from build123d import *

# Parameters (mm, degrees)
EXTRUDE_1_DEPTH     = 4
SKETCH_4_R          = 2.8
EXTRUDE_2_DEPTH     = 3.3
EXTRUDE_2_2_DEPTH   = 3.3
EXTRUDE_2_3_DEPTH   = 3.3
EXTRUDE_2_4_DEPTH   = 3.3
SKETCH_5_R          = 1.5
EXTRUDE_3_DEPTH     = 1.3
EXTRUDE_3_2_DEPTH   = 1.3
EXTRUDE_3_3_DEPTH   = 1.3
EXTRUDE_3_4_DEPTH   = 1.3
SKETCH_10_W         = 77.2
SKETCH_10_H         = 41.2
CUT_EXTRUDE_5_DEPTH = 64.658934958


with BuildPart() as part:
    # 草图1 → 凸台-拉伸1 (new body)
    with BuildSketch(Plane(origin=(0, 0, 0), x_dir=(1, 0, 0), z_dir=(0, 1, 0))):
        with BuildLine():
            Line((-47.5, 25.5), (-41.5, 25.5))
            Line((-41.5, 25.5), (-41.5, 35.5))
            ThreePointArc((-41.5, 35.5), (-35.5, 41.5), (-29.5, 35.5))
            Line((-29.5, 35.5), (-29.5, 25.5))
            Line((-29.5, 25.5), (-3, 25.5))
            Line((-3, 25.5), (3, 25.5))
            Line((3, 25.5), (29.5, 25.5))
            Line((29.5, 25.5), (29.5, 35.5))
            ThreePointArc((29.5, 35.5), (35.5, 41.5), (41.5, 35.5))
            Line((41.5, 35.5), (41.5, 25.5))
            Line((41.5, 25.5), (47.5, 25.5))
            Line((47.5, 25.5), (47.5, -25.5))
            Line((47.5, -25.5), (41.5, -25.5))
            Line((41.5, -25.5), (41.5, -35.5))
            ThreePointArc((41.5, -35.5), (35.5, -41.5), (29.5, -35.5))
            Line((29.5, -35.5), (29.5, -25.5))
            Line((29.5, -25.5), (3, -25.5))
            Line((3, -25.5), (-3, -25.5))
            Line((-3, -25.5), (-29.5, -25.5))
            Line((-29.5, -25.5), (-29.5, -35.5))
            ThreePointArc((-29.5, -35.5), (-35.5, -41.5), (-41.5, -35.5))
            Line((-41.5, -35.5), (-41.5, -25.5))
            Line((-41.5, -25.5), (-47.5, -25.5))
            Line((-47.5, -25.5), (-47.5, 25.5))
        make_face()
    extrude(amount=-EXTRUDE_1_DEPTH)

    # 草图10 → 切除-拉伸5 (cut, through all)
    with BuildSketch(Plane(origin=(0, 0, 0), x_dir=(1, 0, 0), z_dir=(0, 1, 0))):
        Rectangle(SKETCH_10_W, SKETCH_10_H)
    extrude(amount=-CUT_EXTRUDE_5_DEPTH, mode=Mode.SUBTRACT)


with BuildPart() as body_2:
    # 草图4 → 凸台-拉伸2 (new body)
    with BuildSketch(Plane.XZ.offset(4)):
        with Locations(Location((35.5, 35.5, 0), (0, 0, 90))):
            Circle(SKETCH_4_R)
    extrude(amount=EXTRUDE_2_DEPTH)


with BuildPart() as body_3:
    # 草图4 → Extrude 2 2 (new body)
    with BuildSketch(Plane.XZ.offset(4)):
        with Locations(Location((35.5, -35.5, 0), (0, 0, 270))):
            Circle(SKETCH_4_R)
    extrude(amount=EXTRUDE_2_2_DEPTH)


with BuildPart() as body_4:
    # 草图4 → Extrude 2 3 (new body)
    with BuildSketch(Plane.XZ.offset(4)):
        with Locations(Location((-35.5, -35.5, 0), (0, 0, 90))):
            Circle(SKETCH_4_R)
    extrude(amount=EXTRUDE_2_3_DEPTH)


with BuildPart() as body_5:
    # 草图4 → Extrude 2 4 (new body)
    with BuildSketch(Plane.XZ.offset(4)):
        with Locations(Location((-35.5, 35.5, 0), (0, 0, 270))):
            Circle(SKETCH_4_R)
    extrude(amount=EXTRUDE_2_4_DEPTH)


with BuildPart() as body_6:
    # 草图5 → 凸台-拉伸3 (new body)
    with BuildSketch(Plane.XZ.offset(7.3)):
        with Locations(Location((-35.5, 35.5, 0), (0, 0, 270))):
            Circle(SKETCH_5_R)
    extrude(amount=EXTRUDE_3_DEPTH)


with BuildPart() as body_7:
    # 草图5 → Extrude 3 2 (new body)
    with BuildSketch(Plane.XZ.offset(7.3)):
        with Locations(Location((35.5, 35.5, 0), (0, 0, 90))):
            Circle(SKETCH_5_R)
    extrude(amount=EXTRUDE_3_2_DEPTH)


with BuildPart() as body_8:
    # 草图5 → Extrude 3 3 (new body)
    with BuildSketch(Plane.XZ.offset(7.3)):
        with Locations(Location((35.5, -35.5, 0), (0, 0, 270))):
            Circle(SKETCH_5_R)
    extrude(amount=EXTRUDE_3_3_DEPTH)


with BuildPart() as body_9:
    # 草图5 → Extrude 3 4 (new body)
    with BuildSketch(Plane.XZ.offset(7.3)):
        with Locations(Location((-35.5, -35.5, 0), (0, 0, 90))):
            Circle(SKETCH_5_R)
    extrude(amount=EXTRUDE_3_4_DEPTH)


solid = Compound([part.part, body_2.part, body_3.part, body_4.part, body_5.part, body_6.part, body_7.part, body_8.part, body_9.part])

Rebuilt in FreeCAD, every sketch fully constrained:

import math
import FreeCAD as App
import Part
import Sketcher
from FreeCAD import Vector
Q = App.Units.Quantity

doc = App.newDocument("Part")
body = doc.addObject("PartDesign::Body", "Body")

# Sketch on XZ plane
sketch1 = doc.addObject("Sketcher::SketchObject", "Sketch")
body.addObject(sketch1)
sketch1.AttachmentSupport = (doc.XZ_Plane, [""])
sketch1.MapMode = "FlatFace"
sketch1.addGeometry([
    Part.LineSegment(Vector(-42, -26, 0), Vector(-48, -26, 0)),  # 0
    Part.LineSegment(Vector(-48, -26, 0), Vector(-48, 26, 0)),  # 1
    Part.LineSegment(Vector(-48, 26, 0), Vector(-42, 26, 0)),  # 2
    Part.LineSegment(Vector(-42, 26, 0), Vector(-42, 36, 0)),  # 3
    Part.ArcOfCircle(Part.Circle(Vector(-36, 36, 0), Vector(0, 0, 1), 6), math.radians(0), math.radians(180)),  # 4
    Part.LineSegment(Vector(-30, 36, 0), Vector(-30, 26, 0)),  # 5
    Part.LineSegment(Vector(-30, 26, 0), Vector(30, 26, 0)),  # 6
    Part.LineSegment(Vector(30, 26, 0), Vector(30, 36, 0)),  # 7
    Part.ArcOfCircle(Part.Circle(Vector(36, 36, 0), Vector(0, 0, 1), 6), math.radians(0), math.radians(180)),  # 8
    Part.LineSegment(Vector(42, 36, 0), Vector(42, 26, 0)),  # 9
    Part.LineSegment(Vector(42, 26, 0), Vector(48, 26, 0)),  # 10
    Part.LineSegment(Vector(48, 26, 0), Vector(48, -26, 0)),  # 11
    Part.LineSegment(Vector(48, -26, 0), Vector(42, -26, 0)),  # 12
    Part.LineSegment(Vector(42, -26, 0), Vector(42, -36, 0)),  # 13
    Part.ArcOfCircle(Part.Circle(Vector(36, -36, 0), Vector(0, 0, 1), 6), math.radians(180), math.radians(360)),  # 14
    Part.LineSegment(Vector(30, -36, 0), Vector(30, -26, 0)),  # 15
    Part.LineSegment(Vector(30, -26, 0), Vector(-30, -26, 0)),  # 16
    Part.LineSegment(Vector(-30, -26, 0), Vector(-30, -36, 0)),  # 17
    Part.ArcOfCircle(Part.Circle(Vector(-36, -36, 0), Vector(0, 0, 1), 6), math.radians(180), math.radians(360)),  # 18
    Part.LineSegment(Vector(-42, -36, 0), Vector(-42, -26, 0)),  # 19
], False)
sketch1.addConstraint([
    Sketcher.Constraint("Coincident", 0, 2, 1, 1),
    Sketcher.Constraint("Coincident", 1, 2, 2, 1),
    Sketcher.Constraint("Coincident", 2, 2, 3, 1),
    Sketcher.Constraint("Tangent", 3, 2, 4, 2),
    Sketcher.Constraint("Tangent", 4, 1, 5, 1),
    Sketcher.Constraint("Coincident", 5, 2, 6, 1),
    Sketcher.Constraint("Coincident", 6, 2, 7, 1),
    Sketcher.Constraint("Tangent", 7, 2, 8, 2),
    Sketcher.Constraint("Tangent", 8, 1, 9, 1),
    Sketcher.Constraint("Coincident", 9, 2, 10, 1),
    Sketcher.Constraint("Coincident", 10, 2, 11, 1),
    Sketcher.Constraint("Coincident", 11, 2, 12, 1),
    Sketcher.Constraint("Coincident", 12, 2, 13, 1),
    Sketcher.Constraint("Tangent", 13, 2, 14, 2),
    Sketcher.Constraint("Tangent", 14, 1, 15, 1),
    Sketcher.Constraint("Coincident", 15, 2, 16, 1),
    Sketcher.Constraint("Coincident", 16, 2, 17, 1),
    Sketcher.Constraint("Tangent", 17, 2, 18, 2),
    Sketcher.Constraint("Tangent", 18, 1, 19, 1),
    Sketcher.Constraint("Coincident", 19, 2, 0, 1),
    Sketcher.Constraint("Horizontal", 0),
    Sketcher.Constraint("Vertical", 1),
    Sketcher.Constraint("Horizontal", 2),
    Sketcher.Constraint("Vertical", 3),
    Sketcher.Constraint("Vertical", 5),
    Sketcher.Constraint("Horizontal", 6),
    Sketcher.Constraint("Vertical", 7),
    Sketcher.Constraint("Vertical", 9),
    Sketcher.Constraint("Horizontal", 10),
    Sketcher.Constraint("Vertical", 11),
    Sketcher.Constraint("Horizontal", 12),
    Sketcher.Constraint("Vertical", 13),
    Sketcher.Constraint("Vertical", 15),
    Sketcher.Constraint("Horizontal", 16),
    Sketcher.Constraint("Vertical", 17),
    Sketcher.Constraint("Vertical", 19),
    Sketcher.Constraint("Equal", 4, 8),
    Sketcher.Constraint("Equal", 8, 14),
    Sketcher.Constraint("Equal", 14, 18),
    Sketcher.Constraint("Symmetric", 4, 3, 14, 3, -1, 1),
    Sketcher.Constraint("Symmetric", 8, 3, 18, 3, -1, 1),
    Sketcher.Constraint("Symmetric", 0, 2, 10, 2, -1, 1),
    Sketcher.Constraint("Symmetric", 4, 3, 8, 3, -2),
    Sketcher.Constraint("Horizontal", 2, 2, 5, 2),
    Sketcher.Constraint("Horizontal", 6, 2, 9, 2),
    Sketcher.Constraint("Horizontal", 0, 2, 11, 2),
    Sketcher.Constraint("Horizontal", 12, 2, 15, 2),
    Sketcher.Constraint("Radius", 4, Q("6 mm")),
    Sketcher.Constraint("DistanceX", 0, 2, 0, 1, Q("6 mm")),
    Sketcher.Constraint("DistanceX", 6, 1, 6, 2, Q("59 mm")),
    Sketcher.Constraint("DistanceY", 1, 1, 1, 2, Q("51 mm")),
    Sketcher.Constraint("DistanceY", 3, 1, 3, 2, Q("10 mm")),
])
pad1 = doc.addObject("PartDesign::Pad", "Pad")
body.addObject(pad1)
pad1.Profile = sketch1
pad1.Length = 4

# Sketch on XZ plane
sketch2 = doc.addObject("Sketcher::SketchObject", "Sketch001")
body.addObject(sketch2)
sketch2.AttachmentSupport = (doc.XZ_Plane, [""])
sketch2.MapMode = "FlatFace"
sketch2.addGeometry([
    Part.LineSegment(Vector(-39, -21, 0), Vector(-39, 21, 0)),
    Part.LineSegment(Vector(-39, 21, 0), Vector(39, 21, 0)),
    Part.LineSegment(Vector(39, 21, 0), Vector(39, -21, 0)),
    Part.LineSegment(Vector(39, -21, 0), Vector(-39, -21, 0)),
], False)
sketch2.addConstraint([
    Sketcher.Constraint("Coincident", 0, 2, 1, 1),
    Sketcher.Constraint("Coincident", 1, 2, 2, 1),
    Sketcher.Constraint("Coincident", 2, 2, 3, 1),
    Sketcher.Constraint("Coincident", 3, 2, 0, 1),
    Sketcher.Constraint("Vertical", 0),
    Sketcher.Constraint("Horizontal", 1),
    Sketcher.Constraint("Vertical", 2),
    Sketcher.Constraint("Horizontal", 3),
    Sketcher.Constraint("Symmetric", 0, 2, 2, 2, -1, 1),
    Sketcher.Constraint("DistanceX", 1, 1, 1, 2, Q("77.2 mm")),
    Sketcher.Constraint("DistanceY", 0, 1, 0, 2, Q("41.2 mm")),
])
pocket1 = doc.addObject("PartDesign::Pocket", "Pocket")
body.addObject(pocket1)
pocket1.Profile = sketch2
pocket1.Type = "ThroughAll"
pocket1.Reversed = True
body2 = doc.addObject("PartDesign::Body", "Body001")

# Sketch on XZ plane
sketch3 = doc.addObject("Sketcher::SketchObject", "Sketch002")
body2.addObject(sketch3)
sketch3.AttachmentSupport = (doc.getObject("XZ_Plane001"), [""])
sketch3.MapMode = "FlatFace"
sketch3.AttachmentOffset = App.Placement(Vector(0, 0, 4), App.Rotation())
sketch3.addGeometry(Part.Circle(Vector(35.5, 35.5, 0), Vector(0, 0, 1), 2.8), False)
sketch3.addConstraint([
    Sketcher.Constraint("Diameter", 0, Q("5.6 mm")),
    Sketcher.Constraint("DistanceX", -1, 1, 0, 3, Q("35.5 mm")),
    Sketcher.Constraint("DistanceY", -1, 1, 0, 3, Q("35.5 mm")),
])
pad2 = doc.addObject("PartDesign::Pad", "Pad001")
body2.addObject(pad2)
pad2.Profile = sketch3
pad2.Length = 3.3
body3 = doc.addObject("PartDesign::Body", "Body002")

# Sketch on XZ plane
sketch4 = doc.addObject("Sketcher::SketchObject", "Sketch003")
body3.addObject(sketch4)
sketch4.AttachmentSupport = (doc.getObject("XZ_Plane002"), [""])
sketch4.MapMode = "FlatFace"
sketch4.AttachmentOffset = App.Placement(Vector(0, 0, 4), App.Rotation())
sketch4.addGeometry(Part.Circle(Vector(35.5, -35.5, 0), Vector(0, 0, 1), 2.8), False)
sketch4.addConstraint([
    Sketcher.Constraint("Diameter", 0, Q("5.6 mm")),
    Sketcher.Constraint("DistanceX", -1, 1, 0, 3, Q("35.5 mm")),
    Sketcher.Constraint("DistanceY", 0, 3, -1, 1, Q("35.5 mm")),
])
pad3 = doc.addObject("PartDesign::Pad", "Pad002")
body3.addObject(pad3)
pad3.Profile = sketch4
pad3.Length = 3.3
body4 = doc.addObject("PartDesign::Body", "Body003")

# Sketch on XZ plane
sketch5 = doc.addObject("Sketcher::SketchObject", "Sketch004")
body4.addObject(sketch5)
sketch5.AttachmentSupport = (doc.getObject("XZ_Plane003"), [""])
sketch5.MapMode = "FlatFace"
sketch5.AttachmentOffset = App.Placement(Vector(0, 0, 4), App.Rotation())
sketch5.addGeometry(Part.Circle(Vector(-35.5, -35.5, 0), Vector(0, 0, 1), 2.8), False)
sketch5.addConstraint([
    Sketcher.Constraint("Diameter", 0, Q("5.6 mm")),
    Sketcher.Constraint("DistanceX", 0, 3, -1, 1, Q("35.5 mm")),
    Sketcher.Constraint("DistanceY", 0, 3, -1, 1, Q("35.5 mm")),
])
pad4 = doc.addObject("PartDesign::Pad", "Pad003")
body4.addObject(pad4)
pad4.Profile = sketch5
pad4.Length = 3.3
body5 = doc.addObject("PartDesign::Body", "Body004")

# Sketch on XZ plane
sketch6 = doc.addObject("Sketcher::SketchObject", "Sketch005")
body5.addObject(sketch6)
sketch6.AttachmentSupport = (doc.getObject("XZ_Plane004"), [""])
sketch6.MapMode = "FlatFace"
sketch6.AttachmentOffset = App.Placement(Vector(0, 0, 4), App.Rotation())
sketch6.addGeometry(Part.Circle(Vector(-35.5, 35.5, 0), Vector(0, 0, 1), 2.8), False)
sketch6.addConstraint([
    Sketcher.Constraint("Diameter", 0, Q("5.6 mm")),
    Sketcher.Constraint("DistanceX", 0, 3, -1, 1, Q("35.5 mm")),
    Sketcher.Constraint("DistanceY", -1, 1, 0, 3, Q("35.5 mm")),
])
pad5 = doc.addObject("PartDesign::Pad", "Pad004")
body5.addObject(pad5)
pad5.Profile = sketch6
pad5.Length = 3.3
body6 = doc.addObject("PartDesign::Body", "Body005")

# Sketch on XZ plane
sketch7 = doc.addObject("Sketcher::SketchObject", "Sketch006")
body6.addObject(sketch7)
sketch7.AttachmentSupport = (doc.getObject("XZ_Plane005"), [""])
sketch7.MapMode = "FlatFace"
sketch7.AttachmentOffset = App.Placement(Vector(0, 0, 7.3), App.Rotation())
sketch7.addGeometry(Part.Circle(Vector(-35.5, 35.5, 0), Vector(0, 0, 1), 1.5), False)
sketch7.addConstraint([
    Sketcher.Constraint("Diameter", 0, Q("3 mm")),
    Sketcher.Constraint("DistanceX", 0, 3, -1, 1, Q("35.5 mm")),
    Sketcher.Constraint("DistanceY", -1, 1, 0, 3, Q("35.5 mm")),
])
pad6 = doc.addObject("PartDesign::Pad", "Pad005")
body6.addObject(pad6)
pad6.Profile = sketch7
pad6.Length = 1.3
body7 = doc.addObject("PartDesign::Body", "Body006")

# Sketch on XZ plane
sketch8 = doc.addObject("Sketcher::SketchObject", "Sketch007")
body7.addObject(sketch8)
sketch8.AttachmentSupport = (doc.getObject("XZ_Plane006"), [""])
sketch8.MapMode = "FlatFace"
sketch8.AttachmentOffset = App.Placement(Vector(0, 0, 7.3), App.Rotation())
sketch8.addGeometry(Part.Circle(Vector(35.5, 35.5, 0), Vector(0, 0, 1), 1.5), False)
sketch8.addConstraint([
    Sketcher.Constraint("Diameter", 0, Q("3 mm")),
    Sketcher.Constraint("DistanceX", -1, 1, 0, 3, Q("35.5 mm")),
    Sketcher.Constraint("DistanceY", -1, 1, 0, 3, Q("35.5 mm")),
])
pad7 = doc.addObject("PartDesign::Pad", "Pad006")
body7.addObject(pad7)
pad7.Profile = sketch8
pad7.Length = 1.3
body8 = doc.addObject("PartDesign::Body", "Body007")

# Sketch on XZ plane
sketch9 = doc.addObject("Sketcher::SketchObject", "Sketch008")
body8.addObject(sketch9)
sketch9.AttachmentSupport = (doc.getObject("XZ_Plane007"), [""])
sketch9.MapMode = "FlatFace"
sketch9.AttachmentOffset = App.Placement(Vector(0, 0, 7.3), App.Rotation())
sketch9.addGeometry(Part.Circle(Vector(35.5, -35.5, 0), Vector(0, 0, 1), 1.5), False)
sketch9.addConstraint([
    Sketcher.Constraint("Diameter", 0, Q("3 mm")),
    Sketcher.Constraint("DistanceX", -1, 1, 0, 3, Q("35.5 mm")),
    Sketcher.Constraint("DistanceY", 0, 3, -1, 1, Q("35.5 mm")),
])
pad8 = doc.addObject("PartDesign::Pad", "Pad007")
body8.addObject(pad8)
pad8.Profile = sketch9
pad8.Length = 1.3
body9 = doc.addObject("PartDesign::Body", "Body008")

# Sketch on XZ plane
sketch10 = doc.addObject("Sketcher::SketchObject", "Sketch009")
body9.addObject(sketch10)
sketch10.AttachmentSupport = (doc.getObject("XZ_Plane008"), [""])
sketch10.MapMode = "FlatFace"
sketch10.AttachmentOffset = App.Placement(Vector(0, 0, 7.3), App.Rotation())
sketch10.addGeometry(Part.Circle(Vector(-35.5, -35.5, 0), Vector(0, 0, 1), 1.5), False)
sketch10.addConstraint([
    Sketcher.Constraint("Diameter", 0, Q("3 mm")),
    Sketcher.Constraint("DistanceX", 0, 3, -1, 1, Q("35.5 mm")),
    Sketcher.Constraint("DistanceY", 0, 3, -1, 1, Q("35.5 mm")),
])
pad9 = doc.addObject("PartDesign::Pad", "Pad008")
body9.addObject(pad9)
pad9.Profile = sketch10
pad9.Length = 1.3

doc.recompute()
